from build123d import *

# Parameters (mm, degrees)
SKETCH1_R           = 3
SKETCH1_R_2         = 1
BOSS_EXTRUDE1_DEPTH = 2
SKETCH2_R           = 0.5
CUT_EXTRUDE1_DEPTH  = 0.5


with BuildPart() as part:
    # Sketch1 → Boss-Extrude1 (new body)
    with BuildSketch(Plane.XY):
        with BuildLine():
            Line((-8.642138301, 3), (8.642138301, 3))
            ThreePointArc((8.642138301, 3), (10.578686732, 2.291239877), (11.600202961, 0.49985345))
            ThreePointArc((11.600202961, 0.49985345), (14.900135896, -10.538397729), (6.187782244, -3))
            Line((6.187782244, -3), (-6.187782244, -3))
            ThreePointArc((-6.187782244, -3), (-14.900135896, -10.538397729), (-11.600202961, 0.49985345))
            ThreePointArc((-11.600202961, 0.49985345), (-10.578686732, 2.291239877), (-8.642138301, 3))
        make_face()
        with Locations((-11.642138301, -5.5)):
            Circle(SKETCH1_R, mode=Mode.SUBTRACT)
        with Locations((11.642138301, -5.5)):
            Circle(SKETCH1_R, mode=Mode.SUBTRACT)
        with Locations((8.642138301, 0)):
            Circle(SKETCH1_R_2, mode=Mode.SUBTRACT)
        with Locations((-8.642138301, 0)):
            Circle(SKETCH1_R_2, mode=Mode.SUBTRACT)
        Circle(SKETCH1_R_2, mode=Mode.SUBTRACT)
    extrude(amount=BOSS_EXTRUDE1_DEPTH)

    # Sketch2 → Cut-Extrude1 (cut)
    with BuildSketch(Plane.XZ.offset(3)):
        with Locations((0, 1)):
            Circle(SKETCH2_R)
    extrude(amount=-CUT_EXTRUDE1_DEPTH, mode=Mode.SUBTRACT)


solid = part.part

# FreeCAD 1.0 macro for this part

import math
import FreeCAD as App
import Part
import Sketcher
from FreeCAD import Vector

doc = App.newDocument("Part")
body = doc.addObject("PartDesign::Body", "Body")

sketch1 = body.newObject("Sketcher::SketchObject", "Sketch")
sketch1.AttachmentSupport = (doc.getObject("XY_Plane"), [""])
sketch1.MapMode = "FlatFace"
sketch1.addGeometry(Part.LineSegment(Vector(8.6, 3, 0), Vector(-8.6, 3, 0)), False)
sketch1.addGeometry(Part.ArcOfCircle(Part.Circle(Vector(-8.6, 0, 0), Vector(0, 0, 1), 3), math.radians(90), math.radians(170)), False)
sketch1.addGeometry(Part.ArcOfCircle(Part.Circle(Vector(-11.6, -5.5, 0), Vector(0, 0, 1), 6), math.radians(90), math.radians(385)), False)
sketch1.addGeometry(Part.LineSegment(Vector(-6.2, -3, 0), Vector(6.2, -3, 0)), False)
sketch1.addGeometry(Part.ArcOfCircle(Part.Circle(Vector(11.6, -5.5, 0), Vector(0, 0, 1), 6), math.radians(155), math.radians(450)), False)
sketch1.addGeometry(Part.ArcOfCircle(Part.Circle(Vector(8.6, 0, 0), Vector(0, 0, 1), 3), math.radians(10), math.radians(90)), False)
sketch1.addGeometry(Part.Circle(Vector(11.6, -5.5, 0), Vector(0, 0, 1), 3), False)
sketch1.addGeometry(Part.Circle(Vector(-11.6, -5.5, 0), Vector(0, 0, 1), 3), False)
sketch1.addGeometry(Part.Circle(Vector(8.6, 0, 0), Vector(0, 0, 1), 1), False)
sketch1.addGeometry(Part.Circle(Vector(0, 0, 0), Vector(0, 0, 1), 1), False)
sketch1.addGeometry(Part.Circle(Vector(-8.6, 0, 0), Vector(0, 0, 1), 1), False)
sketch1.addConstraint(Sketcher.Constraint("Tangent", 0, 2, 1, 1))
sketch1.addConstraint(Sketcher.Constraint("Coincident", 1, 2, 2, 1))
sketch1.addConstraint(Sketcher.Constraint("Coincident", 2, 2, 3, 1))
sketch1.addConstraint(Sketcher.Constraint("Coincident", 3, 2, 4, 1))
sketch1.addConstraint(Sketcher.Constraint("Coincident", 4, 2, 5, 1))
sketch1.addConstraint(Sketcher.Constraint("Tangent", 5, 2, 0, 1))
sketch1.addConstraint(Sketcher.Constraint("Horizontal", 0))
sketch1.addConstraint(Sketcher.Constraint("Horizontal", 3))
sketch1.addConstraint(Sketcher.Constraint("Coincident", 9, 3, -1, 1))
sketch1.addConstraint(Sketcher.Constraint("Coincident", 6, 3, 4, 3))
sketch1.addConstraint(Sketcher.Constraint("Coincident", 7, 3, 2, 3))
sketch1.addConstraint(Sketcher.Constraint("Coincident", 8, 3, 5, 3))
sketch1.addConstraint(Sketcher.Constraint("Coincident", 10, 3, 1, 3))
sketch1.addConstraint(Sketcher.Constraint("Equal", 2, 4))
sketch1.addConstraint(Sketcher.Constraint("Equal", 1, 5))
sketch1.addConstraint(Sketcher.Constraint("Equal", 5, 6))
sketch1.addConstraint(Sketcher.Constraint("Equal", 6, 7))
sketch1.addConstraint(Sketcher.Constraint("Equal", 8, 9))
sketch1.addConstraint(Sketcher.Constraint("Equal", 9, 10))
sketch1.addConstraint(Sketcher.Constraint("Symmetric", 1, 3, 5, 3, -1, 1))
sketch1.addConstraint(Sketcher.Constraint("Symmetric", 2, 3, 4, 3, -2))
sketch1.addConstraint(Sketcher.Constraint("Diameter", 6, 6.0))
sketch1.addConstraint(Sketcher.Constraint("Diameter", 8, 2.0))
sketch1.addConstraint(Sketcher.Constraint("Radius", 2, 6.0))
sketch1.addConstraint(Sketcher.Constraint("DistanceY", 2, 2, -1, 1, 3.0))
sketch1.addConstraint(Sketcher.Constraint("DistanceX", 2, 3, 1, 3, 3.0))
sketch1.addConstraint(Sketcher.Constraint("DistanceY", 2, 3, -1, 1, 5.5))
sketch1.addConstraint(Sketcher.Constraint("DistanceX", 0, 2, 0, 1, 17.284277))
pad1 = body.newObject("PartDesign::Pad", "Pad")
pad1.Profile = sketch1
pad1.Length = 2

sketch2 = body.newObject("Sketcher::SketchObject", "Sketch001")
sketch2.AttachmentSupport = (doc.getObject("XZ_Plane"), [""])
sketch2.MapMode = "FlatFace"
sketch2.AttachmentOffset = App.Placement(Vector(0, 0, 3), App.Rotation())
sketch2.addGeometry(Part.Circle(Vector(0, 1, 0), Vector(0, 0, 1), 0.5), False)
sketch2.addConstraint(Sketcher.Constraint("PointOnObject", 0, 3, -2))
sketch2.addConstraint(Sketcher.Constraint("Diameter", 0, 1.0))
sketch2.addConstraint(Sketcher.Constraint("DistanceY", -1, 1, 0, 3, 1.0))
pocket1 = body.newObject("PartDesign::Pocket", "Pocket")
pocket1.Profile = sketch2
pocket1.Length = 0.5

doc.recompute()
